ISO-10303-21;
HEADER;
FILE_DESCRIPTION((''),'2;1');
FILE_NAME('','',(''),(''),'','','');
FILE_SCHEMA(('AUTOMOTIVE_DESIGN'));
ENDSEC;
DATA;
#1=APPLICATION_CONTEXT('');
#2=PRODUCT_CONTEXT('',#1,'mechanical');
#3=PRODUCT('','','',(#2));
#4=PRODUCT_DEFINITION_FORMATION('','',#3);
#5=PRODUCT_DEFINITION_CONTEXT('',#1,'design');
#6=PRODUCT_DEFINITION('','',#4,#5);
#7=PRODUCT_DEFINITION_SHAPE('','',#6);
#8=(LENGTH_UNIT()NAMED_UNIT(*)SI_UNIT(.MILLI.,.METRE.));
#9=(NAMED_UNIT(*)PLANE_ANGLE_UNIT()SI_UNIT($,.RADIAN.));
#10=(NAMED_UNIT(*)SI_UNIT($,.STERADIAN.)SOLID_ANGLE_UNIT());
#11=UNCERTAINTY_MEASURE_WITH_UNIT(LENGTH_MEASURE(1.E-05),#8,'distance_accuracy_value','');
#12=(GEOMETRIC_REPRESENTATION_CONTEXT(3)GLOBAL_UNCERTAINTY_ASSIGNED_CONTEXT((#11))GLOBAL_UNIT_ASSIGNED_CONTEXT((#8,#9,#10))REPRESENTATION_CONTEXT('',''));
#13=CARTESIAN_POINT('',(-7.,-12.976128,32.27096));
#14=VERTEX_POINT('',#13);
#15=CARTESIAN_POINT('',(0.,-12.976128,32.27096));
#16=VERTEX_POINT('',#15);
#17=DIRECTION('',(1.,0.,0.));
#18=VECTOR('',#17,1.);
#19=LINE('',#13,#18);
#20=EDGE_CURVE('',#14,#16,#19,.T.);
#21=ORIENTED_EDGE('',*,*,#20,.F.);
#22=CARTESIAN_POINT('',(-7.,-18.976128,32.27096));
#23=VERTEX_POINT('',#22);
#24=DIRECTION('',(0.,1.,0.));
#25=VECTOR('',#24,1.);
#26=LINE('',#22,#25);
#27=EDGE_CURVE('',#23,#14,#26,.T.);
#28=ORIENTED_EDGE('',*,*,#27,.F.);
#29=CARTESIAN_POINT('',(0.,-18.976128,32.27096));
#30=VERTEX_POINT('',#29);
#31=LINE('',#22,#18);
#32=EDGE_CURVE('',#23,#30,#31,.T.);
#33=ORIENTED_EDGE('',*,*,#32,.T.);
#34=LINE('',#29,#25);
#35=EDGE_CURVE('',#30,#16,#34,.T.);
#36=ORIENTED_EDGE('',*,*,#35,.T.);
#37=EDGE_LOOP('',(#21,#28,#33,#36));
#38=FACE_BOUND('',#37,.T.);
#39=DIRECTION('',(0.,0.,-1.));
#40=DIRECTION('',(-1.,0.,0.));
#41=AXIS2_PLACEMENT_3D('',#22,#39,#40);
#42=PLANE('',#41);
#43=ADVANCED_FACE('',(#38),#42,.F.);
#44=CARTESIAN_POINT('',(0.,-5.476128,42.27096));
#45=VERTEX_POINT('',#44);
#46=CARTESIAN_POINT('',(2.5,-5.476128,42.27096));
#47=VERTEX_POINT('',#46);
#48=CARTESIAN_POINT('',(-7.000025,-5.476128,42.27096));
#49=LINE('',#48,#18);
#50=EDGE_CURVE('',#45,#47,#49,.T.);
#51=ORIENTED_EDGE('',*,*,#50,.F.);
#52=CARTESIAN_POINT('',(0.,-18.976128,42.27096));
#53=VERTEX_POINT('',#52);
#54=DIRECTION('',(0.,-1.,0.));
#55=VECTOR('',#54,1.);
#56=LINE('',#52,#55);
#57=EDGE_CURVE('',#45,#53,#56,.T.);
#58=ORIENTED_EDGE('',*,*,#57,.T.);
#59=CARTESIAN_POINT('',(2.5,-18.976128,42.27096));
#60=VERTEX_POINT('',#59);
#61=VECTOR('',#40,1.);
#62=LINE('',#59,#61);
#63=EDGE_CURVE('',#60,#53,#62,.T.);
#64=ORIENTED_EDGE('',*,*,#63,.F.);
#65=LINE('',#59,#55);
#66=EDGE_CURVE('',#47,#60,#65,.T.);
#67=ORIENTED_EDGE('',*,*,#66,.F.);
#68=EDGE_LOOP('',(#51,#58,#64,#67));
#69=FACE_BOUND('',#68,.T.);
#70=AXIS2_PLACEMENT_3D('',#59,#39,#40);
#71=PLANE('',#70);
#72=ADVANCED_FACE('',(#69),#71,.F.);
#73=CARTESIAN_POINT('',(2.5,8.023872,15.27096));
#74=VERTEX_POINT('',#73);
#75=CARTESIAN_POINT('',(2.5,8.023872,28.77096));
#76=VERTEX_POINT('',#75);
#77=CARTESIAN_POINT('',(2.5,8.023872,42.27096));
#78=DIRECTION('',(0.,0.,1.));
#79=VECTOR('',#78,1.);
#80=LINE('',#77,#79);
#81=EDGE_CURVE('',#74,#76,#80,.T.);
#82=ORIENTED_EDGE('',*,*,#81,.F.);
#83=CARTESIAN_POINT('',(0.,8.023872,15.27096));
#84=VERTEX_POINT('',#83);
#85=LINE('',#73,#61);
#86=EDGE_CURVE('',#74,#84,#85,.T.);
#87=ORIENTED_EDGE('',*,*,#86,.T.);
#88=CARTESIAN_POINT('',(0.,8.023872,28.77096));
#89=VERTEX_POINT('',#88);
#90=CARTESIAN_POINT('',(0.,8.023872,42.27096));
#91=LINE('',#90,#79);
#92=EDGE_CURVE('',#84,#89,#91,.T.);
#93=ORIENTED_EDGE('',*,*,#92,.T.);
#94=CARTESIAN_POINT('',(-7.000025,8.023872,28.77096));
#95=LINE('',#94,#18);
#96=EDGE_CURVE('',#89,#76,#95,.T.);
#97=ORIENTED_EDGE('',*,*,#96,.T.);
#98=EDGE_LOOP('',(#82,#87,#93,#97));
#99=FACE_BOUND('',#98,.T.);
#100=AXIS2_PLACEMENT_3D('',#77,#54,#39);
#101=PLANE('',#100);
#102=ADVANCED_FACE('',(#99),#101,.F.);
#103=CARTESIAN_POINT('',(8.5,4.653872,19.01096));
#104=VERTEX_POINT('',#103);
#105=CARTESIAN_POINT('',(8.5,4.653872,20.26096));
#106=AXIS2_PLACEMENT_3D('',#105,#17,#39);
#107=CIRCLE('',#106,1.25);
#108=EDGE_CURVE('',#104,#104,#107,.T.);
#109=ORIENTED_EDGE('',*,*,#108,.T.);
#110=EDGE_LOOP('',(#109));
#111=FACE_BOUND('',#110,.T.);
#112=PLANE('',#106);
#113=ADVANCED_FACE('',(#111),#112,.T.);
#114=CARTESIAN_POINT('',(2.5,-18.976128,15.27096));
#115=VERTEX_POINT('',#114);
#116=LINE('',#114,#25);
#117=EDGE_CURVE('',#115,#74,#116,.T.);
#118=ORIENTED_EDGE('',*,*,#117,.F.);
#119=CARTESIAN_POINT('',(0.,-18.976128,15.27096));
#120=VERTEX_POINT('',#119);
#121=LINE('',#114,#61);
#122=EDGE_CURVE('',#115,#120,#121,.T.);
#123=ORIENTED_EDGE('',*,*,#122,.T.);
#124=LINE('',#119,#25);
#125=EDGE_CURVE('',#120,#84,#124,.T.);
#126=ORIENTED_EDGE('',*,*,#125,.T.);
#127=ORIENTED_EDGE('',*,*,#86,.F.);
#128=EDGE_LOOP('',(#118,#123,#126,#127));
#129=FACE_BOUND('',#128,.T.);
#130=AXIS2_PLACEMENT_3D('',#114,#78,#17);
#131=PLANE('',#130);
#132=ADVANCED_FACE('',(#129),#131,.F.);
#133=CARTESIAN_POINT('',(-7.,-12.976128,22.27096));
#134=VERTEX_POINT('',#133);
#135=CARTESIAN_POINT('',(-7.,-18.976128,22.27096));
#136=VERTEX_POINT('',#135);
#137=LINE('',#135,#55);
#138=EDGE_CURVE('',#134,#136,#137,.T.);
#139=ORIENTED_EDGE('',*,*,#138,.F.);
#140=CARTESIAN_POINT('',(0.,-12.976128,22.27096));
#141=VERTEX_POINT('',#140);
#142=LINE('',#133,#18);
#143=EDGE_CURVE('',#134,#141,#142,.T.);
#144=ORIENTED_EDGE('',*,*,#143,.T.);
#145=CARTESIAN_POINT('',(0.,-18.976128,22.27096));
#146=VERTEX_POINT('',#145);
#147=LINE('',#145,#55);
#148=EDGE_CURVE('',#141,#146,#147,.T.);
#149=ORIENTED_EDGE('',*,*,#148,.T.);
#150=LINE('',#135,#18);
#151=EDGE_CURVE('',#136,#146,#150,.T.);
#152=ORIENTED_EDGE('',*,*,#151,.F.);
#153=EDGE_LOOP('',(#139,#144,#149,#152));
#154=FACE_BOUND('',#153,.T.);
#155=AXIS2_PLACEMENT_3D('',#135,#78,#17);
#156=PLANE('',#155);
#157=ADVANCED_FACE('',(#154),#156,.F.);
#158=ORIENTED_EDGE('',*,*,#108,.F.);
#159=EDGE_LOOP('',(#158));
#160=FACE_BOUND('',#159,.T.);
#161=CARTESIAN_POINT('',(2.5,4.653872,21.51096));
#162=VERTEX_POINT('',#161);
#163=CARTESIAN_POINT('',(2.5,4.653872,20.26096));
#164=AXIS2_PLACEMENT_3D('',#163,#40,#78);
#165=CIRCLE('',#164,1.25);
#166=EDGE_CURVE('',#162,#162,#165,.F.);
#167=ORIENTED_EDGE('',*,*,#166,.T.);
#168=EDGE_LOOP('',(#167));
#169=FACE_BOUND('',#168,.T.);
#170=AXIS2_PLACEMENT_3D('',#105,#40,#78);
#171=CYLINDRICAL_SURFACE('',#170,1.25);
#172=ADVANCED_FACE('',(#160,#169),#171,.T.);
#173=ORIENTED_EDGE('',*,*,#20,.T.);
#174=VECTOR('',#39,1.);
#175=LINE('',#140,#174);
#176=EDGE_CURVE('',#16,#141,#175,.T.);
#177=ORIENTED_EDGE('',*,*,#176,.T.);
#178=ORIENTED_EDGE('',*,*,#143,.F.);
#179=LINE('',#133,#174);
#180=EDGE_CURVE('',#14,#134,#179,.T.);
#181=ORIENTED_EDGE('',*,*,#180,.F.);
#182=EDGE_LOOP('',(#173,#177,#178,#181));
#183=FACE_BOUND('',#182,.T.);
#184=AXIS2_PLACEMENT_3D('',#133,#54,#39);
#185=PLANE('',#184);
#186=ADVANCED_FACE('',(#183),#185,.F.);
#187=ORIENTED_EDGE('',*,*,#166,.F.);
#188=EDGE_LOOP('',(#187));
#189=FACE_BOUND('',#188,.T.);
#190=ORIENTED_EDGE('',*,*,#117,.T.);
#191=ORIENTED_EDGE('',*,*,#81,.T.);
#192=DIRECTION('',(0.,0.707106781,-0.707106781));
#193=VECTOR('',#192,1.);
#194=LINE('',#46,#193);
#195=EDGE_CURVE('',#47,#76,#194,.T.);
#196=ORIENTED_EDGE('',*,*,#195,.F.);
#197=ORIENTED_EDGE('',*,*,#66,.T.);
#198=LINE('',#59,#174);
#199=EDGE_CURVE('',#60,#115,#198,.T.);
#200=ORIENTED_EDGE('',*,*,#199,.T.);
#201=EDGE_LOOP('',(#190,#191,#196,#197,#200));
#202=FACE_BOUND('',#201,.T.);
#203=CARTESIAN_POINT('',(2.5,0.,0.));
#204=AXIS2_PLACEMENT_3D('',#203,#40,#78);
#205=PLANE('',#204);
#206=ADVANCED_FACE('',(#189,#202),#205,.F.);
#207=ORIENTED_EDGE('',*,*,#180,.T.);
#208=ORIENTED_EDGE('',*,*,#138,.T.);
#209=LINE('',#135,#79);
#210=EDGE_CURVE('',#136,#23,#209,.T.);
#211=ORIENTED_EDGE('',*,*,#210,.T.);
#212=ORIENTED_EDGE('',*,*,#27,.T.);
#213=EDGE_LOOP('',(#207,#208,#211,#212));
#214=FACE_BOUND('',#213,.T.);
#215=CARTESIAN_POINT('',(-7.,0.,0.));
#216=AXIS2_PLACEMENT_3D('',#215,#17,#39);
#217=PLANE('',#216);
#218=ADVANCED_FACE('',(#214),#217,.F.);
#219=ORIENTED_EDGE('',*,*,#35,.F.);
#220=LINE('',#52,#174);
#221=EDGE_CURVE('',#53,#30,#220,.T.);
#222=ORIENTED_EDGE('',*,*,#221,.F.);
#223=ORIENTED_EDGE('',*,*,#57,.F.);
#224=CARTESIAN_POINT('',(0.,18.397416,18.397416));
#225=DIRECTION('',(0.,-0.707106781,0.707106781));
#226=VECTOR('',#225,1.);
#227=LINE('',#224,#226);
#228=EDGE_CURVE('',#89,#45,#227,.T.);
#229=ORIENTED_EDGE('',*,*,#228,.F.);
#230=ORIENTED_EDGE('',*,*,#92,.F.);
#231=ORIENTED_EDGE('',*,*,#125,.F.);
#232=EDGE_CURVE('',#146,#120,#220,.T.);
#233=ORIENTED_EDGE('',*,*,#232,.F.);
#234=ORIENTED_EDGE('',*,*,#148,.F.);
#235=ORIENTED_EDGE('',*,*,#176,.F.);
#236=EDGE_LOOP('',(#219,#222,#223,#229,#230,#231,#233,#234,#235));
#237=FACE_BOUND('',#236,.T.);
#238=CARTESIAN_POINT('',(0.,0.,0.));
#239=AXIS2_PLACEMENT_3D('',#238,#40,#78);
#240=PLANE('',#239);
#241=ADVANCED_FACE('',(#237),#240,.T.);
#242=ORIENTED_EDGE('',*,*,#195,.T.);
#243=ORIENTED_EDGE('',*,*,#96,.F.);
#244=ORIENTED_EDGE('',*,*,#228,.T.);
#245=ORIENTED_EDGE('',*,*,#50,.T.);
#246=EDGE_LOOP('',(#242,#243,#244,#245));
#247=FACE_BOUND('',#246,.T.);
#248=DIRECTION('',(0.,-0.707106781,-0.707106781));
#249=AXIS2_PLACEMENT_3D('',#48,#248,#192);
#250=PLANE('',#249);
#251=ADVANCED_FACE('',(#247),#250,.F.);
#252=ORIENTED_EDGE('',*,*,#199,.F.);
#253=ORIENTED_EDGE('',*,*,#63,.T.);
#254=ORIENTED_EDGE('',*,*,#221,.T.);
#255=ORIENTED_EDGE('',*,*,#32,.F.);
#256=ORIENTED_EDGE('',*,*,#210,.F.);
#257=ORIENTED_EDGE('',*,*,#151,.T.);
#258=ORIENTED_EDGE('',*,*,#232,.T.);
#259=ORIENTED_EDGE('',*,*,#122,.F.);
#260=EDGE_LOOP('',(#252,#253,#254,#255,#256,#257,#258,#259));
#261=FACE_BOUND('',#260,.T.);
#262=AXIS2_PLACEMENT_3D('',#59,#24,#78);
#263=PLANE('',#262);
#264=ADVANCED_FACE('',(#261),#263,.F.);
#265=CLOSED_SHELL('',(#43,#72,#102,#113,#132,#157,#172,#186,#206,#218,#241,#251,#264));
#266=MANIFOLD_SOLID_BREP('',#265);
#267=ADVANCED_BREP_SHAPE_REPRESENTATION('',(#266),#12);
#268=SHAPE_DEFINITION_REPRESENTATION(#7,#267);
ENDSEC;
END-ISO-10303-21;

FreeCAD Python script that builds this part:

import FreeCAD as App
import Part
import Sketcher
from FreeCAD import Vector
Q = App.Units.Quantity


def add_polygon(sketch, points):
    """Adds a closed chain of lines whose ends are joined by coincident constraints."""
    first, n = sketch.GeometryCount, len(points)
    for a, b in zip(points, points[1:] + points[:1]):
        sketch.addGeometry(Part.LineSegment(App.Vector(*a, 0), App.Vector(*b, 0)), False)
    for i in range(n):
        sketch.addConstraint(Sketcher.Constraint("Coincident", first + i, 2, first + (i + 1) % n, 1))

doc = App.newDocument("Part")
params = doc.addObject("Spreadsheet::Sheet", "Params")
for row, (alias, value) in enumerate([
    ("sketch1_width", "27 mm"),
    ("pad1_length", "2.5 mm"),
    ("sketch2_diameter", "2.5 mm"),
    ("pad2_length", "6 mm"),
    ("sketch3_width", "6 mm"),
    ("sketch3_height", "10 mm"),
    ("pad3_length", "7 mm"),
    ("sketch4_width", "13.5 mm"),
], start=1):
    params.set(f"A{row}", alias)
    params.set(f"B{row}", "=" + value)
    params.setAlias(f"B{row}", alias)

body = doc.addObject("PartDesign::Body", "Body")

# Sketch on YZ plane
sketch1 = doc.addObject("Sketcher::SketchObject", "Sketch")
body.addObject(sketch1)
sketch1.AttachmentSupport = (doc.YZ_Plane, [""])
sketch1.MapMode = "FlatFace"
add_polygon(sketch1, [(8, 42), (-19, 42), (-19, 15), (8, 15)])  # lines 0-3
sketch1.addConstraint([
    Sketcher.Constraint("Horizontal", 0),
    Sketcher.Constraint("Vertical", 1),
    Sketcher.Constraint("Horizontal", 2),
    Sketcher.Constraint("Vertical", 3),
    Sketcher.Constraint("Equal", 2, 1),
    Sketcher.Constraint("DistanceX", 0, 2, 0, 1, Q("27 mm")),
    Sketcher.Constraint("DistanceY", -1, 1, 0, 2, Q("42.27096 mm")),
    Sketcher.Constraint("DistanceX", 0, 2, -1, 1, Q("18.976128 mm")),
])
sketch1.setExpression("Constraints[9]", "Params.sketch1_width")
pad1 = doc.addObject("PartDesign::Pad", "Pad")
body.addObject(pad1)
pad1.Profile = sketch1
pad1.setExpression("Length", "Params.pad1_length")

# Sketch on YZ plane
sketch2 = doc.addObject("Sketcher::SketchObject", "Sketch001")
body.addObject(sketch2)
sketch2.AttachmentSupport = (doc.YZ_Plane, [""])
sketch2.MapMode = "FlatFace"
sketch2.AttachmentOffset = App.Placement(Vector(0, 0, 2.5), App.Rotation())
sketch2.addGeometry(Part.Circle(Vector(4.7, 20.3, 0), Vector(0, 0, 1), 1.2), False)
sketch2.addConstraint([
    Sketcher.Constraint("Diameter", 0, Q("2.5 mm")),
    Sketcher.Constraint("DistanceY", -1, 1, 0, 3, Q("20.26096 mm")),
    Sketcher.Constraint("DistanceX", -1, 1, 0, 3, Q("4.653872 mm")),
])
sketch2.setExpression("Constraints[0]", "Params.sketch2_diameter")
pad2 = doc.addObject("PartDesign::Pad", "Pad001")
body.addObject(pad2)
pad2.Profile = sketch2
pad2.setExpression("Length", "Params.pad2_length")

# Sketch on YZ plane
sketch3 = doc.addObject("Sketcher::SketchObject", "Sketch002")
body.addObject(sketch3)
sketch3.AttachmentSupport = (doc.YZ_Plane, [""])
sketch3.MapMode = "FlatFace"
add_polygon(sketch3, [(-13, 22), (-19, 22), (-19, 32), (-13, 32)])  # lines 0-3
sketch3.addConstraint([
    Sketcher.Constraint("Horizontal", 0),
    Sketcher.Constraint("Vertical", 1),
    Sketcher.Constraint("Horizontal", 2),
    Sketcher.Constraint("Vertical", 3),
    Sketcher.Constraint("DistanceX", 0, 2, 0, 1, Q("6 mm")),
    Sketcher.Constraint("DistanceY", 1, 1, 1, 2, Q("10 mm")),
    Sketcher.Constraint("DistanceY", -1, 1, 0, 2, Q("22.27096 mm")),
    Sketcher.Constraint("DistanceX", 0, 2, -1, 1, Q("18.976128 mm")),
])
sketch3.setExpression("Constraints[8]", "Params.sketch3_width")
sketch3.setExpression("Constraints[9]", "Params.sketch3_height")
pad3 = doc.addObject("PartDesign::Pad", "Pad002")
body.addObject(pad3)
pad3.Profile = sketch3
pad3.setExpression("Length", "Params.pad3_length")
pad3.Reversed = True

# Sketch on YZ plane
sketch4 = doc.addObject("Sketcher::SketchObject", "Sketch003")
body.addObject(sketch4)
sketch4.AttachmentSupport = (doc.YZ_Plane, [""])
sketch4.MapMode = "FlatFace"
sketch4.AttachmentOffset = App.Placement(Vector(0, 0, 2.5), App.Rotation())
add_polygon(sketch4, [(-5, 42), (8, 29), (8, 42)])  # lines 0-2
sketch4.addConstraint([
    Sketcher.Constraint("Vertical", 1),
    Sketcher.Constraint("Horizontal", 2),
    Sketcher.Constraint("Equal", 2, 1),
    Sketcher.Constraint("DistanceX", 2, 2, 2, 1, Q("13.5 mm")),
    Sketcher.Constraint("DistanceY", -1, 1, 0, 2, Q("28.77096 mm")),
    Sketcher.Constraint("DistanceX", -1, 1, 0, 2, Q("8.023872 mm")),
])
sketch4.setExpression("Constraints[6]", "Params.sketch4_width")
pocket1 = doc.addObject("PartDesign::Pocket", "Pocket")
body.addObject(pocket1)
pocket1.Profile = sketch4
pocket1.Type = "ThroughAll"

doc.recompute()
